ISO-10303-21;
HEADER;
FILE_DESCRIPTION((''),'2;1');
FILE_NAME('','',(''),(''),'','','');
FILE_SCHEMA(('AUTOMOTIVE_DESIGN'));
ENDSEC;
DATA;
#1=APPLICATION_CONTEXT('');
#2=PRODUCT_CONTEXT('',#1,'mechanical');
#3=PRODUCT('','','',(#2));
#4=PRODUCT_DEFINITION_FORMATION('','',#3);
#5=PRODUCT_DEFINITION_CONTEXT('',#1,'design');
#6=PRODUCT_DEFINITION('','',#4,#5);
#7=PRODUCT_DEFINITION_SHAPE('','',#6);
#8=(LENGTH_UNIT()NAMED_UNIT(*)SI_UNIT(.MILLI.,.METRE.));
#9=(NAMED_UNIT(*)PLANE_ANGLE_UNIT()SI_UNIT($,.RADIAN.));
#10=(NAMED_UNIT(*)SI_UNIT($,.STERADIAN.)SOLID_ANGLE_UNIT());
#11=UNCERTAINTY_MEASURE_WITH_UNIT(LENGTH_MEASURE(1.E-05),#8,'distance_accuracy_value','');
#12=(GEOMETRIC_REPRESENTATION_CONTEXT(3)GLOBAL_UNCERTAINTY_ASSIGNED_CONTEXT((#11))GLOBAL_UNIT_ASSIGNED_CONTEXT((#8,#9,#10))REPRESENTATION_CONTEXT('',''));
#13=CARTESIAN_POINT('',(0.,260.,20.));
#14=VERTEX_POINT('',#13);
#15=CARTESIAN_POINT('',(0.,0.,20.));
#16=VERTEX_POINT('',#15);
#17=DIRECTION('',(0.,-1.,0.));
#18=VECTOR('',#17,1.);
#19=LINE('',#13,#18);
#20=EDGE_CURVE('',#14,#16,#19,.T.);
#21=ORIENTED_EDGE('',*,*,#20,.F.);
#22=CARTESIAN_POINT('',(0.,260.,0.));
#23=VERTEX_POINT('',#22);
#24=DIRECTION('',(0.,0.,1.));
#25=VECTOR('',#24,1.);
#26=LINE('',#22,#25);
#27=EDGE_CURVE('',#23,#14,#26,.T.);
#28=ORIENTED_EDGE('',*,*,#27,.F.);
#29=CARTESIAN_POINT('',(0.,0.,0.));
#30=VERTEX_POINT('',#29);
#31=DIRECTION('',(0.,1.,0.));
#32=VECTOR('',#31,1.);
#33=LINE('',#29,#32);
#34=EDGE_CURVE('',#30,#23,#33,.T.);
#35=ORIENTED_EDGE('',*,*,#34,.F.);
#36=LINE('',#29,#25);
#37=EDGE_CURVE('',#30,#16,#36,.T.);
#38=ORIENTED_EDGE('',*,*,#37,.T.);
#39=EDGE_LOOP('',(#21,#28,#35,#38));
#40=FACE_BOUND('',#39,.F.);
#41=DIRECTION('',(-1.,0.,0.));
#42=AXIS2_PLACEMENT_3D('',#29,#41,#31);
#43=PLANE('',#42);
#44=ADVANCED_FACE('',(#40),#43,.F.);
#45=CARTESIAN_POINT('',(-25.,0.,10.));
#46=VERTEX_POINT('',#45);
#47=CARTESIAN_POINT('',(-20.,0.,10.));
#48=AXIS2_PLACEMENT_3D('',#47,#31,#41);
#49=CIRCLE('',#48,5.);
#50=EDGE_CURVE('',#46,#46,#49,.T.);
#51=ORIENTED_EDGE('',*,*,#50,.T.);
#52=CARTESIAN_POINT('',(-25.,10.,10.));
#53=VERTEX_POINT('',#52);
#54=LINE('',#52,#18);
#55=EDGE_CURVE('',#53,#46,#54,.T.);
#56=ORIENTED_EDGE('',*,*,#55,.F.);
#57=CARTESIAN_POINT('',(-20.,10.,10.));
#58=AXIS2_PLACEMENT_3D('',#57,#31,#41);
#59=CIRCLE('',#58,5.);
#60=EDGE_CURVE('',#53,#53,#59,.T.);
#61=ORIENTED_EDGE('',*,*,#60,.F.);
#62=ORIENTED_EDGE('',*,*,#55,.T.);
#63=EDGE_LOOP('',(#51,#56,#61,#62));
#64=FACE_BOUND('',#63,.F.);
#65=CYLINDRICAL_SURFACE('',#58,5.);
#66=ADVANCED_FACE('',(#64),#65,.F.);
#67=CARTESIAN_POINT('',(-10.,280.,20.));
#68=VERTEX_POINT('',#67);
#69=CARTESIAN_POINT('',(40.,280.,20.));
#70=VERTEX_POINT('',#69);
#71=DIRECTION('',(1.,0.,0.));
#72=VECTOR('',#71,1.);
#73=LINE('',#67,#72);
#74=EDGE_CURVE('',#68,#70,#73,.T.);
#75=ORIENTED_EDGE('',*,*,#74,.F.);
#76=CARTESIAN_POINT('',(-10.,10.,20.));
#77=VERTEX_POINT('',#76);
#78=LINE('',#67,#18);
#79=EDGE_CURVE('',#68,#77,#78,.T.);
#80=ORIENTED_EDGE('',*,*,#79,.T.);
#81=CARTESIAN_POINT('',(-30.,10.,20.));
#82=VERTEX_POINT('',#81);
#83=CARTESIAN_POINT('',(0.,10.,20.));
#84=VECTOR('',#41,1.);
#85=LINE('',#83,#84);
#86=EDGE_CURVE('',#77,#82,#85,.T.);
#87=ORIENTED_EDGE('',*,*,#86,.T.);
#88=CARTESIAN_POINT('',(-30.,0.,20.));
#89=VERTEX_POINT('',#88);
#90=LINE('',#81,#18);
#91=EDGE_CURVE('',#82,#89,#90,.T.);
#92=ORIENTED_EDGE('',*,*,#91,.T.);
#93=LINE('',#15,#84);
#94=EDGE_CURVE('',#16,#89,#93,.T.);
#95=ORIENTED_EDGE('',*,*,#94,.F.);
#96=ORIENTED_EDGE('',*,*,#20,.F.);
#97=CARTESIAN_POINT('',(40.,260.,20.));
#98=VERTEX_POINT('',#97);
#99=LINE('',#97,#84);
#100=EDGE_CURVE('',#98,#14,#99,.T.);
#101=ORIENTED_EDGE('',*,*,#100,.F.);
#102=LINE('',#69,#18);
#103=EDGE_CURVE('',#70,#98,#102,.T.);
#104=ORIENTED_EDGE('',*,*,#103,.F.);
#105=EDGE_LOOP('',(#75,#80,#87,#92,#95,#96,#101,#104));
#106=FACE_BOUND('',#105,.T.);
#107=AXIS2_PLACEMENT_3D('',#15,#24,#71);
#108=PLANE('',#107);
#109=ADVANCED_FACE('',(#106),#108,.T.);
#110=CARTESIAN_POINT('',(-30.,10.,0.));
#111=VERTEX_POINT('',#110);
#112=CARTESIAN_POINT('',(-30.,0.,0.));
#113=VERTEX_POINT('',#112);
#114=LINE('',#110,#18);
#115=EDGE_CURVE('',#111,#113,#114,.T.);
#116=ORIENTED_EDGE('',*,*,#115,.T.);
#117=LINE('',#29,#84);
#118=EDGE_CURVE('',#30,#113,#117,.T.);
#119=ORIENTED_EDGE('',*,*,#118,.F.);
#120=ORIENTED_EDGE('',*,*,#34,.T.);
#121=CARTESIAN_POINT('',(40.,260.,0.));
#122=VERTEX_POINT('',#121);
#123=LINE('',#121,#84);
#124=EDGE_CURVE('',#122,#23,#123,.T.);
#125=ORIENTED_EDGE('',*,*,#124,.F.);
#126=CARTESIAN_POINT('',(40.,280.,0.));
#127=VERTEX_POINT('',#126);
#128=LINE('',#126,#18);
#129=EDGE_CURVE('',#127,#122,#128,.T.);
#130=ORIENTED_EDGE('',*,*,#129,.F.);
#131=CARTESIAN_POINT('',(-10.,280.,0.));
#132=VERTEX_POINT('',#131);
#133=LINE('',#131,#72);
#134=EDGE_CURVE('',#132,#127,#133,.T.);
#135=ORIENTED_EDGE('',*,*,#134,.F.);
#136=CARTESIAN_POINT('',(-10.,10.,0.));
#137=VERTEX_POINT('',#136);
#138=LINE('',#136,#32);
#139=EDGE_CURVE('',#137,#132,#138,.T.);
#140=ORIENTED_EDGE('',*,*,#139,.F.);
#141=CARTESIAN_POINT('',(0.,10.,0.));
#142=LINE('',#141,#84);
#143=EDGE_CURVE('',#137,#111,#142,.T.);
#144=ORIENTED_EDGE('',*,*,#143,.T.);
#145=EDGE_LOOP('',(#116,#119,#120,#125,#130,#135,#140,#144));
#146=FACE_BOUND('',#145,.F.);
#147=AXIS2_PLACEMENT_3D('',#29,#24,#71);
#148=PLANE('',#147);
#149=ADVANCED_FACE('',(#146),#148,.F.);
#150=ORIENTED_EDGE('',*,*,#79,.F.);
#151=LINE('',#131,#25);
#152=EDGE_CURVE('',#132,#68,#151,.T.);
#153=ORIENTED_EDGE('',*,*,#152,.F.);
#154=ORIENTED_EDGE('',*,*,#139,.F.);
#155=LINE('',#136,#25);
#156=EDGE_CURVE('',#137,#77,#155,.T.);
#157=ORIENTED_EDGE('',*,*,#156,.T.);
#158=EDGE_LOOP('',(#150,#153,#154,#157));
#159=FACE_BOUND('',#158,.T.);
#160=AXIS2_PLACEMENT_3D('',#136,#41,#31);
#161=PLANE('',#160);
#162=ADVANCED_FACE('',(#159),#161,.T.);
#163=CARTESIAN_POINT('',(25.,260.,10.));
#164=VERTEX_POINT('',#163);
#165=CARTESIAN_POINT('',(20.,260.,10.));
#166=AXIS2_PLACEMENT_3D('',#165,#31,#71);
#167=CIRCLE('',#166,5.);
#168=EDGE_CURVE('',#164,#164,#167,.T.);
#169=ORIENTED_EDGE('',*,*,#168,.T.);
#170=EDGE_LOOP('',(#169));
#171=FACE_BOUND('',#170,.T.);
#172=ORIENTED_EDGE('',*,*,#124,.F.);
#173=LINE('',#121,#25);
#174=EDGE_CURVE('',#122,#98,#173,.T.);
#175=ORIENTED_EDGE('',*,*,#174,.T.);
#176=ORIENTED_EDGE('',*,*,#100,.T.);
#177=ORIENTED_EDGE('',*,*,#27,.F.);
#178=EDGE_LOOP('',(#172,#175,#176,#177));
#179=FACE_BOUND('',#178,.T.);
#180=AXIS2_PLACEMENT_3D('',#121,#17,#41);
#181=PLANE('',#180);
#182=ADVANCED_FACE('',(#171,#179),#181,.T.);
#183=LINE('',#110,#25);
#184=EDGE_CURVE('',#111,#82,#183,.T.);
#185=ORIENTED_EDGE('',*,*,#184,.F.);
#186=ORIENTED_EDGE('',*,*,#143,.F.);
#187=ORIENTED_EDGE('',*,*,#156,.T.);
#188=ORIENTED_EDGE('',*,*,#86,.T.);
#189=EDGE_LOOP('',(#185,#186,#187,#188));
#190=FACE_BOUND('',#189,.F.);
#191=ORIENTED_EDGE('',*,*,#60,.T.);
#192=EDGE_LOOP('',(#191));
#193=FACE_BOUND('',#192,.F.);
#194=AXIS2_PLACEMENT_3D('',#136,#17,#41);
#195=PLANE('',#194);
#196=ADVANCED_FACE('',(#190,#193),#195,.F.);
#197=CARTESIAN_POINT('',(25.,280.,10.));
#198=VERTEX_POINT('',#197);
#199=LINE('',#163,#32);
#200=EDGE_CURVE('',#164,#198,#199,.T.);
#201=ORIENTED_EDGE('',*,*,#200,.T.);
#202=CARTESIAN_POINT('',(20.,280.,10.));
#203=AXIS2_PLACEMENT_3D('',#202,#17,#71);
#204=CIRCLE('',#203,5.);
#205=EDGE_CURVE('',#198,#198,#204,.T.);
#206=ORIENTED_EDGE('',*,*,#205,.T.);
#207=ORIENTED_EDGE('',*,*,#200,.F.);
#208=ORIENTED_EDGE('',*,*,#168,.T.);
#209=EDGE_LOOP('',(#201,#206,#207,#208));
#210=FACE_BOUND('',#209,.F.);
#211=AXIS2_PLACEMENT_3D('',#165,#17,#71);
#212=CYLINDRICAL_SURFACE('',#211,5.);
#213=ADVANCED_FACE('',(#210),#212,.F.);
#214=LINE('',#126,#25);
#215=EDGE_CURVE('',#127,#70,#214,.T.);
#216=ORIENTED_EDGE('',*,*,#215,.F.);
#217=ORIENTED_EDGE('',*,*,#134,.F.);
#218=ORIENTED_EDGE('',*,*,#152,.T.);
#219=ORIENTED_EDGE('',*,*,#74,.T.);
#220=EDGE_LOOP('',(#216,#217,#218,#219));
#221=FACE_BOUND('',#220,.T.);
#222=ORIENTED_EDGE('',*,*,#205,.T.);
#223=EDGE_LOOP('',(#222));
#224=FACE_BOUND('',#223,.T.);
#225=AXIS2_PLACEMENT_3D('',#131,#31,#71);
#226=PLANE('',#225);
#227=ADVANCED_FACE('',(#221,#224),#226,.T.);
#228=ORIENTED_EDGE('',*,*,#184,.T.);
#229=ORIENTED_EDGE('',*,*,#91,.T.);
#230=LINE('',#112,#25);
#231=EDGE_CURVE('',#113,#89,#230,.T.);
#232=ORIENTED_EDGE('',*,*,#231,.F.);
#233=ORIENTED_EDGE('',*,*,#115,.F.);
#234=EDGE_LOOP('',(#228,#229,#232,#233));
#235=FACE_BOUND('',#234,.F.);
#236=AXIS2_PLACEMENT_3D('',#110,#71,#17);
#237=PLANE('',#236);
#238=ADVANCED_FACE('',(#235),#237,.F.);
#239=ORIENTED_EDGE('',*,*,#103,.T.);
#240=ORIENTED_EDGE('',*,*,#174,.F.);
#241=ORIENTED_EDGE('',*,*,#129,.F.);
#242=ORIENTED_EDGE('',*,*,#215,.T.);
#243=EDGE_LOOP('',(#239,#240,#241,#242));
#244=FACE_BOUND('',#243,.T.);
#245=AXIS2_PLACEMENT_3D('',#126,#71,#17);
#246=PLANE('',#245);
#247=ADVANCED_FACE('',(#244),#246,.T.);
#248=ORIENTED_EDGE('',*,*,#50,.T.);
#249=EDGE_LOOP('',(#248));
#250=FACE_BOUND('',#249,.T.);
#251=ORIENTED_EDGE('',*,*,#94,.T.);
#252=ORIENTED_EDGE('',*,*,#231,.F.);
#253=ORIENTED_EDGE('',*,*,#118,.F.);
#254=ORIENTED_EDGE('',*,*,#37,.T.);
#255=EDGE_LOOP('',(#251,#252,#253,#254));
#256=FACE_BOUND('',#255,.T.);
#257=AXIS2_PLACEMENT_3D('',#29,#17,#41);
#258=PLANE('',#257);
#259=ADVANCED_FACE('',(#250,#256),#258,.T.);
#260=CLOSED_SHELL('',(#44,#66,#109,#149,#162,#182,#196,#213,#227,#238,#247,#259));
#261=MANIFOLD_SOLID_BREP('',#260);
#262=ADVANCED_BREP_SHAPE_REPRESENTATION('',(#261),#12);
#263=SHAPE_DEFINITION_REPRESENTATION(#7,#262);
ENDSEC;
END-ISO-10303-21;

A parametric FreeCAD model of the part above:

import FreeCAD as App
import Part
import Sketcher
from FreeCAD import Vector
Q = App.Units.Quantity


def add_polygon(sketch, points):
    """Adds a closed chain of lines whose ends are joined by coincident constraints."""
    first, n = sketch.GeometryCount, len(points)
    for a, b in zip(points, points[1:] + points[:1]):
        sketch.addGeometry(Part.LineSegment(App.Vector(*a, 0), App.Vector(*b, 0)), False)
    for i in range(n):
        sketch.addConstraint(Sketcher.Constraint("Coincident", first + i, 2, first + (i + 1) % n, 1))

doc = App.newDocument("Part")
params = doc.addObject("Spreadsheet::Sheet", "Params")
for row, (alias, value) in enumerate([
    ("sketch1_width", "30 mm"),
    ("sketch1_width2", "50 mm"),
    ("sketch1_width3", "20 mm"),
    ("sketch1_height", "260 mm"),
    ("sketch1_height2", "270 mm"),
    ("pad1_length", "20 mm"),
    ("sketch2_diameter", "10 mm"),
    ("pocket1_length", "25 mm"),
    ("sketch3_diameter", "10 mm"),
    ("pocket2_length", "100 mm"),
], start=1):
    params.set(f"A{row}", alias)
    params.set(f"B{row}", "=" + value)
    params.setAlias(f"B{row}", alias)

body = doc.addObject("PartDesign::Body", "Body")

# Sketch on XY plane
sketch1 = body.newObject("Sketcher::SketchObject", "Sketch")
sketch1.AttachmentSupport = (doc.getObject("XY_Plane"), [""])
sketch1.MapMode = "FlatFace"
add_polygon(sketch1, [(-30, 0), (0, 0), (0, 260), (40, 260), (40, 280), (-10, 280), (-10, 10), (-30, 10)])  # lines 0-7
sketch1.addConstraint(Sketcher.Constraint("Horizontal", 0))
sketch1.addConstraint(Sketcher.Constraint("Vertical", 1))
sketch1.addConstraint(Sketcher.Constraint("Horizontal", 2))
sketch1.addConstraint(Sketcher.Constraint("Vertical", 3))
sketch1.addConstraint(Sketcher.Constraint("Horizontal", 4))
sketch1.addConstraint(Sketcher.Constraint("Vertical", 5))
sketch1.addConstraint(Sketcher.Constraint("Horizontal", 6))
sketch1.addConstraint(Sketcher.Constraint("Vertical", 7))
sketch1.addConstraint(Sketcher.Constraint("Coincident", 0, 2, -1, 1))
sketch1.addConstraint(Sketcher.Constraint("Equal", 6, 3))
sketch1.addConstraint(Sketcher.Constraint("DistanceX", 0, 1, 0, 2, Q("30 mm")))
sketch1.addConstraint(Sketcher.Constraint("DistanceX", 4, 2, 4, 1, Q("50 mm")))
sketch1.addConstraint(Sketcher.Constraint("DistanceX", 6, 2, 6, 1, Q("20 mm")))
sketch1.addConstraint(Sketcher.Constraint("DistanceY", 1, 1, 1, 2, Q("260 mm")))
sketch1.addConstraint(Sketcher.Constraint("DistanceY", 5, 2, 5, 1, Q("270 mm")))
sketch1.setExpression("Constraints[18]", "Params.sketch1_width")
sketch1.setExpression("Constraints[19]", "Params.sketch1_width2")
sketch1.setExpression("Constraints[20]", "Params.sketch1_width3")
sketch1.setExpression("Constraints[21]", "Params.sketch1_height")
sketch1.setExpression("Constraints[22]", "Params.sketch1_height2")
pad1 = body.newObject("PartDesign::Pad", "Pad")
pad1.Profile = sketch1
pad1.setExpression("Length", "Params.pad1_length")

# Sketch on XZ plane
sketch2 = body.newObject("Sketcher::SketchObject", "Sketch001")
sketch2.AttachmentSupport = (doc.getObject("XZ_Plane"), [""])
sketch2.MapMode = "FlatFace"
sketch2.AttachmentOffset = App.Placement(Vector(0, 0, -10), App.Rotation())
sketch2.addGeometry(Part.Circle(Vector(-20, 10, 0), Vector(0, 0, 1), 5), False)
sketch2.addConstraint(Sketcher.Constraint("Diameter", 0, Q("10 mm")))
sketch2.addConstraint(Sketcher.Constraint("DistanceY", -1, 1, 0, 3, Q("10 mm")))
sketch2.addConstraint(Sketcher.Constraint("DistanceX", 0, 3, -1, 1, Q("20 mm")))
sketch2.setExpression("Constraints[0]", "Params.sketch2_diameter")
pocket1 = body.newObject("PartDesign::Pocket", "Pocket")
pocket1.Profile = sketch2
pocket1.setExpression("Length", "Params.pocket1_length")
pocket1.Reversed = True

# Sketch on XZ plane
sketch3 = body.newObject("Sketcher::SketchObject", "Sketch002")
sketch3.AttachmentSupport = (doc.getObject("XZ_Plane"), [""])
sketch3.MapMode = "FlatFace"
sketch3.AttachmentOffset = App.Placement(Vector(0, 0, -260), App.Rotation())
sketch3.addGeometry(Part.Circle(Vector(20, 10, 0), Vector(0, 0, 1), 5), False)
sketch3.addConstraint(Sketcher.Constraint("Diameter", 0, Q("10 mm")))
sketch3.addConstraint(Sketcher.Constraint("DistanceY", -1, 1, 0, 3, Q("10 mm")))
sketch3.addConstraint(Sketcher.Constraint("DistanceX", -1, 1, 0, 3, Q("20 mm")))
sketch3.setExpression("Constraints[0]", "Params.sketch3_diameter")
pocket2 = body.newObject("PartDesign::Pocket", "Pocket001")
pocket2.Profile = sketch3
pocket2.setExpression("Length", "Params.pocket2_length")

doc.recompute()
